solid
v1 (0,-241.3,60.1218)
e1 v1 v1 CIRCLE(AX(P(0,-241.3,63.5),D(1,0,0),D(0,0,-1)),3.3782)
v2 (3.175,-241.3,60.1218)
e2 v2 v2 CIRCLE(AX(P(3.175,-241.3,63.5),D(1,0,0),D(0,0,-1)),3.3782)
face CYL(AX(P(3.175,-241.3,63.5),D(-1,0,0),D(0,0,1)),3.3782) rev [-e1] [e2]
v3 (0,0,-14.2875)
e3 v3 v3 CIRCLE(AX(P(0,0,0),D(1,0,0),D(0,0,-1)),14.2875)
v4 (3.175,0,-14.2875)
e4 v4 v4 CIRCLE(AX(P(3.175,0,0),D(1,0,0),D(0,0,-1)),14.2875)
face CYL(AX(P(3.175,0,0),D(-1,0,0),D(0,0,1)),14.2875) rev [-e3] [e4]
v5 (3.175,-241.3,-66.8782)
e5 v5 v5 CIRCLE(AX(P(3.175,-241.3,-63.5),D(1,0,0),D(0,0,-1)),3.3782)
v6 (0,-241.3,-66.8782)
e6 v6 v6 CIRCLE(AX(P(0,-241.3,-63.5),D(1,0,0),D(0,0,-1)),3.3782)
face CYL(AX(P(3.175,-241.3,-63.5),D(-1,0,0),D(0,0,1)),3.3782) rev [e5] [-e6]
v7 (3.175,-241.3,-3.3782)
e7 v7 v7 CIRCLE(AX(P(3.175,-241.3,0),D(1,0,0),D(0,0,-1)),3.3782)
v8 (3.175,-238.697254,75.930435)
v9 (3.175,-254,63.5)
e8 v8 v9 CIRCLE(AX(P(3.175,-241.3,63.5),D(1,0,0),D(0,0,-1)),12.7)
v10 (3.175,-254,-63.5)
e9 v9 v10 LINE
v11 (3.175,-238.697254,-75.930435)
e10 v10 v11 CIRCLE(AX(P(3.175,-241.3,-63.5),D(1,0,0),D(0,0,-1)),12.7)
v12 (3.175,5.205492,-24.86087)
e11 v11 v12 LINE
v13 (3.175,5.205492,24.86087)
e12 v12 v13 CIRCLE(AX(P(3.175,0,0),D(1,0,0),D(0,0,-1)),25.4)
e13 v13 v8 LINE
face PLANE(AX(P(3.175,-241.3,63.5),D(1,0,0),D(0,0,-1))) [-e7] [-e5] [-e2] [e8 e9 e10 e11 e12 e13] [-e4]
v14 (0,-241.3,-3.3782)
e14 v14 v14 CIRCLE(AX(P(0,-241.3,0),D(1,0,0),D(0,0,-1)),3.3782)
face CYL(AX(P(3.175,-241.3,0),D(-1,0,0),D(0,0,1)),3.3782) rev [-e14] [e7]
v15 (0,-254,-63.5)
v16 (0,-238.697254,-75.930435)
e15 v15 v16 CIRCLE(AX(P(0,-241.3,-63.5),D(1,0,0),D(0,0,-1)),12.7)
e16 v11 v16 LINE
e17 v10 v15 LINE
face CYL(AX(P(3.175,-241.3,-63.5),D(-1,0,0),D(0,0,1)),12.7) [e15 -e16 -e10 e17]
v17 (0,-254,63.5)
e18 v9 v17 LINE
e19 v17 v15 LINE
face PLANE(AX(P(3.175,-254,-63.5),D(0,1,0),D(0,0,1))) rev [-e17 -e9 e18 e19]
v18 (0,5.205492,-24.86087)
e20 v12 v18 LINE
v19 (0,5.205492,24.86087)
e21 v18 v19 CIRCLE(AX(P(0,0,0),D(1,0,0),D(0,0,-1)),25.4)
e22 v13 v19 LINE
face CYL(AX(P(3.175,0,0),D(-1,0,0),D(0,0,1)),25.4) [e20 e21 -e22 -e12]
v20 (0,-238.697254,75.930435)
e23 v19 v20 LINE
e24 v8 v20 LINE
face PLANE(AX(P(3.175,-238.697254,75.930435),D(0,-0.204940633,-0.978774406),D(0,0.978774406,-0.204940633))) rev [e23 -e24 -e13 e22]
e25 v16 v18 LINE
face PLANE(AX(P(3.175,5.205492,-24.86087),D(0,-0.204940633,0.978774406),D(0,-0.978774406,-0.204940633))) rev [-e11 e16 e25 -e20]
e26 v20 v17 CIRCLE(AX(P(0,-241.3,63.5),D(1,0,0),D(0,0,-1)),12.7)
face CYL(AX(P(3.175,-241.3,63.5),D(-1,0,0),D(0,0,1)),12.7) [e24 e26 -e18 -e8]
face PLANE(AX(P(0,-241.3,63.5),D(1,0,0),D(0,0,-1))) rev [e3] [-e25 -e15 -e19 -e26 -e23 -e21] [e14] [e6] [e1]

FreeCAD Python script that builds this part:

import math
import FreeCAD as App
import Part
import Sketcher
from FreeCAD import Vector
Q = App.Units.Quantity

doc = App.newDocument("Part")
params = doc.addObject("Spreadsheet::Sheet", "Params")
for row, (alias, value) in enumerate([
    ("sketch1_radius", "1 in"),
    ("sketch1_radius2", "0.5 in"),
    ("sketch1_height", "5 in"),
    ("sketch1_diameter", "0.266 in"),
    ("sketch1_diameter2", "1.125 in"),
    ("pad1_length", "0.125 in"),
], start=1):
    params.set(f"A{row}", alias)
    params.set(f"B{row}", "=" + value)
    params.setAlias(f"B{row}", alias)

body = doc.addObject("PartDesign::Body", "Body")

sketch1 = doc.addObject("Sketcher::SketchObject", "Sketch")
body.addObject(sketch1)
sketch1.AttachmentSupport = (doc.YZ_Plane, [""])
sketch1.MapMode = "FlatFace"
sketch1.addGeometry([
    Part.LineSegment(Vector(5.2, 24.9, 0), Vector(-238.7, 75.9, 0)),
    Part.ArcOfCircle(Part.Circle(Vector(-241.3, 63.5, 0), Vector(0, 0, 1), 12.7), math.radians(78), math.radians(180)),
    Part.LineSegment(Vector(-254, 63.5, 0), Vector(-254, -63.5, 0)),
    Part.ArcOfCircle(Part.Circle(Vector(-241.3, -63.5, 0), Vector(0, 0, 1), 12.7), math.radians(180), math.radians(282)),
    Part.LineSegment(Vector(-238.7, -75.9, 0), Vector(5.2, -24.9, 0)),
    Part.ArcOfCircle(Part.Circle(Vector(0, 0, 0), Vector(0, 0, 1), 25.4), math.radians(-78), math.radians(78)),
    Part.Circle(Vector(-241.3, -63.5, 0), Vector(0, 0, 1), 3.4),
    Part.Circle(Vector(-241.3, 0, 0), Vector(0, 0, 1), 3.4),
    Part.Circle(Vector(-241.3, 63.5, 0), Vector(0, 0, 1), 3.4),
    Part.Circle(Vector(0, 0, 0), Vector(0, 0, 1), 14.3),
], False)
sketch1.addConstraint([
    Sketcher.Constraint("Tangent", 0, 2, 1, 1),
    Sketcher.Constraint("Tangent", 1, 2, 2, 1),
    Sketcher.Constraint("Tangent", 2, 2, 3, 1),
    Sketcher.Constraint("Tangent", 3, 2, 4, 1),
    Sketcher.Constraint("Tangent", 4, 2, 5, 1),
    Sketcher.Constraint("Tangent", 5, 2, 0, 1),
    Sketcher.Constraint("Vertical", 2),
    Sketcher.Constraint("Coincident", 5, 3, -1, 1),
    Sketcher.Constraint("Coincident", 9, 3, -1, 1),
    Sketcher.Constraint("Coincident", 6, 3, 3, 3),
    Sketcher.Constraint("Coincident", 8, 3, 1, 3),
    Sketcher.Constraint("Equal", 1, 3),
    Sketcher.Constraint("Equal", 6, 7),
    Sketcher.Constraint("Equal", 7, 8),
    Sketcher.Constraint("PointOnObject", 7, 3, -1),
    Sketcher.Constraint("Vertical", 6, 3, 7, 3),
    Sketcher.Constraint("Vertical", 0, 2, 3, 2),
    Sketcher.Constraint("Radius", 5, Q("1 in")),
    Sketcher.Constraint("Radius", 1, Q("0.5 in")),
    Sketcher.Constraint("DistanceY", 2, 2, 2, 1, Q("5 in")),
    Sketcher.Constraint("Diameter", 6, Q("0.266 in")),
    Sketcher.Constraint("Diameter", 9, Q("1.125 in")),
    Sketcher.Constraint("DistanceX", 1, 2, -1, 1, Q("10 in")),
])
sketch1.setExpression("Constraints[17]", "Params.sketch1_radius")
sketch1.setExpression("Constraints[18]", "Params.sketch1_radius2")
sketch1.setExpression("Constraints[19]", "Params.sketch1_height")
sketch1.setExpression("Constraints[20]", "Params.sketch1_diameter")
sketch1.setExpression("Constraints[21]", "Params.sketch1_diameter2")
pad1 = doc.addObject("PartDesign::Pad", "Pad")
body.addObject(pad1)
pad1.Profile = sketch1
pad1.setExpression("Length", "Params.pad1_length")

doc.recompute()
